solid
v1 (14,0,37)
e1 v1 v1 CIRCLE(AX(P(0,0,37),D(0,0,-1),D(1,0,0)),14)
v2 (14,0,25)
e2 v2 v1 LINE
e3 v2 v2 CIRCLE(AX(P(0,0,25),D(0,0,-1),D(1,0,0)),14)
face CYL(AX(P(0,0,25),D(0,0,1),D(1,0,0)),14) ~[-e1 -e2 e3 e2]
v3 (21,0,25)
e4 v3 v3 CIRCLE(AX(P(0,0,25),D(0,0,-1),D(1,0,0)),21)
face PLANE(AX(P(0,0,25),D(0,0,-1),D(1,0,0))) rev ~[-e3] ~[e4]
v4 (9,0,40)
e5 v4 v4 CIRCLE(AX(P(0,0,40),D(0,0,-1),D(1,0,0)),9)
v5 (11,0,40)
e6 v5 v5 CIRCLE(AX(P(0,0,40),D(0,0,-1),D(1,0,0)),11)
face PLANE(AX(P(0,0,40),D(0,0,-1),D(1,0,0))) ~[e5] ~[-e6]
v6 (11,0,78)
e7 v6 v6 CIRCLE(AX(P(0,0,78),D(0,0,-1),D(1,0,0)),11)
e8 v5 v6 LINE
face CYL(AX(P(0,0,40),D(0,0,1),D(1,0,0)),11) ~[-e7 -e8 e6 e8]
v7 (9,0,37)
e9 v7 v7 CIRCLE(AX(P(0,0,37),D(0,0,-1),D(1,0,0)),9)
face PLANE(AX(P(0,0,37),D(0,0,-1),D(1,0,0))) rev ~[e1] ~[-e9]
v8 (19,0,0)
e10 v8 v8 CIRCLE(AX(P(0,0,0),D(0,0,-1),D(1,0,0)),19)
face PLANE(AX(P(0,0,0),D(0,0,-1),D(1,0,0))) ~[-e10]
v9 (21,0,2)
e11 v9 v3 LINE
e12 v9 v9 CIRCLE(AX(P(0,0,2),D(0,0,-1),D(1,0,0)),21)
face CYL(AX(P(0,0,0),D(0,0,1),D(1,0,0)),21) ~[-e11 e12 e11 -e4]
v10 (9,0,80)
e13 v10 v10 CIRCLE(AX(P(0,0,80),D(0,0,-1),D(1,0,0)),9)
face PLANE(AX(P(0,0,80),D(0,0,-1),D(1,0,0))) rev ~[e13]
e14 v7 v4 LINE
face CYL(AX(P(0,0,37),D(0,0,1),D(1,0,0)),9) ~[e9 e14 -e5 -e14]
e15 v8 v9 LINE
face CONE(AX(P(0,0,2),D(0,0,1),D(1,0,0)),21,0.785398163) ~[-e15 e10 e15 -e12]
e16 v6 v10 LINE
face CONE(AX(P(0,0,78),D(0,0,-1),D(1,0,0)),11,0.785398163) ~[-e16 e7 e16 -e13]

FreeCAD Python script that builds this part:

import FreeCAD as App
import Part
import Sketcher


def edges_at(feature, points):
    """Names of the edges that pass closest to the given points."""
    edges = feature.Shape.Edges
    near = lambda p: min(range(len(edges)), key=lambda i: edges[i].distToShape(Part.Vertex(*p))[0])
    return sorted({f"Edge{near(p) + 1}" for p in points})


def add_polygon(sketch, points):
    """Adds a closed chain of lines whose ends are joined by coincident constraints."""
    first, n = sketch.GeometryCount, len(points)
    for a, b in zip(points, points[1:] + points[:1]):
        sketch.addGeometry(Part.LineSegment(App.Vector(*a, 0), App.Vector(*b, 0)), False)
    for i in range(n):
        sketch.addConstraint(Sketcher.Constraint("Coincident", first + i, 2, first + (i + 1) % n, 1))

doc = App.newDocument("Part")
body = doc.addObject("PartDesign::Body", "Body")

# Sketch on XZ plane
sketch1 = body.newObject("Sketcher::SketchObject", "Sketch")
sketch1.AttachmentSupport = (doc.getObject("XZ_Plane"), [""])
sketch1.MapMode = "FlatFace"
add_polygon(sketch1, [(0, 80), (0, 0), (21, 0), (21, 25), (14, 25), (14, 37), (9, 37), (9, 40), (11, 40), (11, 80)])  # lines 0-9
sketch1.addConstraint(Sketcher.Constraint("Vertical", 0))
sketch1.addConstraint(Sketcher.Constraint("Horizontal", 1))
sketch1.addConstraint(Sketcher.Constraint("Vertical", 2))
sketch1.addConstraint(Sketcher.Constraint("Horizontal", 3))
sketch1.addConstraint(Sketcher.Constraint("Vertical", 4))
sketch1.addConstraint(Sketcher.Constraint("Horizontal", 5))
sketch1.addConstraint(Sketcher.Constraint("Vertical", 6))
sketch1.addConstraint(Sketcher.Constraint("Horizontal", 7))
sketch1.addConstraint(Sketcher.Constraint("Vertical", 8))
sketch1.addConstraint(Sketcher.Constraint("Horizontal", 9))
sketch1.addConstraint(Sketcher.Constraint("Coincident", 0, 2, -1, 1))
sketch1.addConstraint(Sketcher.Constraint("DistanceX", 1, 1, 1, 2, 21.0))
sketch1.addConstraint(Sketcher.Constraint("DistanceX", 3, 2, 3, 1, 7.0))
sketch1.addConstraint(Sketcher.Constraint("DistanceX", 5, 2, 5, 1, 5.0))
sketch1.addConstraint(Sketcher.Constraint("DistanceX", 7, 1, 7, 2, 2.0))
sketch1.addConstraint(Sketcher.Constraint("DistanceY", 0, 2, 0, 1, 80.0))
sketch1.addConstraint(Sketcher.Constraint("DistanceY", 2, 1, 2, 2, 25.0))
sketch1.addConstraint(Sketcher.Constraint("DistanceY", 4, 1, 4, 2, 12.0))
sketch1.addConstraint(Sketcher.Constraint("DistanceY", 6, 1, 6, 2, 3.0))
revolution = body.newObject("PartDesign::Revolution", "Revolution")
revolution.Profile = sketch1
revolution.ReferenceAxis = (sketch1, ["V_Axis"])
revolution.Angle = 360
doc.recompute()

chamfer = body.newObject("PartDesign::Chamfer", "Chamfer")
chamfer.Base = (revolution, edges_at(revolution, [(-11, 0, 80), (-21, 0, 0)]))
chamfer.ChamferType = "Two distances"
chamfer.Size = 2
chamfer.Size2 = 2

doc.recompute()
